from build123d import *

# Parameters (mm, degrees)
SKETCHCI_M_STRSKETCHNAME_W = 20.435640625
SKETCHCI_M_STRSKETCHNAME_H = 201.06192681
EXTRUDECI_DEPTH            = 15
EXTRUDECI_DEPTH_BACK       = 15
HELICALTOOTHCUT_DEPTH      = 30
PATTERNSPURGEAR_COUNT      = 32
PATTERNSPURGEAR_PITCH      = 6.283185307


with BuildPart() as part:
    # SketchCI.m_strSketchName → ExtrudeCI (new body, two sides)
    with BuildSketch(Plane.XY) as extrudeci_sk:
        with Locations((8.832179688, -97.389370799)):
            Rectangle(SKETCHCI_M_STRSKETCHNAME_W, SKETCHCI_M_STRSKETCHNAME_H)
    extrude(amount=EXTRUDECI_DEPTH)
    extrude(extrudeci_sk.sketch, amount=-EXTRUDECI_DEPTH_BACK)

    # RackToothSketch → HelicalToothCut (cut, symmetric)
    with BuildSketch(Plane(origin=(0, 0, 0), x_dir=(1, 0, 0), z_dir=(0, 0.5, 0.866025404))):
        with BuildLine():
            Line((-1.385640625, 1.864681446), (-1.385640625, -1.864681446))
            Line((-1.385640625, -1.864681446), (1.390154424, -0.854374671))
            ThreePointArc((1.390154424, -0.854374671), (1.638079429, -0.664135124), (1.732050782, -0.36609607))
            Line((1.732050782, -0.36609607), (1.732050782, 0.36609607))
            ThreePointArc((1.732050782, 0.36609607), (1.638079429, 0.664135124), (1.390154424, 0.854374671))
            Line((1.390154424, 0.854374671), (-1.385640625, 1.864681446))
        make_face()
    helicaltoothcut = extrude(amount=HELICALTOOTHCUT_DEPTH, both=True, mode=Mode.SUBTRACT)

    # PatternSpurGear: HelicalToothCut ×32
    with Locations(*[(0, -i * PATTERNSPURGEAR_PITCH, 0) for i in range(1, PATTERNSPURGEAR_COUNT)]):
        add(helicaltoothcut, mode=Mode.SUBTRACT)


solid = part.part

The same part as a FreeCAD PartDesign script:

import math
import FreeCAD as App
import Part
import Sketcher
from FreeCAD import Vector
Q = App.Units.Quantity

doc = App.newDocument("Part")
body = doc.addObject("PartDesign::Body", "Body")

sketch1 = doc.addObject("Sketcher::SketchObject", "Sketch")
body.addObject(sketch1)
sketch1.AttachmentSupport = (doc.XY_Plane, [""])
sketch1.MapMode = "FlatFace"
sketch1.addGeometry([
    Part.LineSegment(Vector(-1, 3, 0), Vector(-1, -198, 0)),
    Part.LineSegment(Vector(-1, -198, 0), Vector(19, -198, 0)),
    Part.LineSegment(Vector(19, -198, 0), Vector(19, 3, 0)),
    Part.LineSegment(Vector(19, 3, 0), Vector(-1, 3, 0)),
], False)
sketch1.addConstraint([
    Sketcher.Constraint("Coincident", 0, 2, 1, 1),
    Sketcher.Constraint("Coincident", 1, 2, 2, 1),
    Sketcher.Constraint("Coincident", 2, 2, 3, 1),
    Sketcher.Constraint("Coincident", 3, 2, 0, 1),
    Sketcher.Constraint("Vertical", 0),
    Sketcher.Constraint("Horizontal", 1),
    Sketcher.Constraint("Vertical", 2),
    Sketcher.Constraint("Horizontal", 3),
    Sketcher.Constraint("DistanceX", -1, 1, 1, 2, 19.05),
    Sketcher.Constraint("DistanceX", 1, 1, 1, 2, 20.435641),
    Sketcher.Constraint("DistanceY", 0, 2, 0, 1, 201.061927),
    Sketcher.Constraint("DistanceY", 0, 2, -1, 1, 197.920334),
])
pad1 = doc.addObject("PartDesign::Pad", "Pad")
body.addObject(pad1)
pad1.Profile = sketch1
pad1.Type = "TwoLengths"
pad1.Length = 15
pad1.Length2 = 15

sketch2 = doc.addObject("Sketcher::SketchObject", "Sketch001")
body.addObject(sketch2)
sketch2.Placement = App.Placement(Vector(0, 0, 0), App.Rotation(Vector(1, 0, 0), Vector(0, 0.866025404, -0.5), Vector(0, 0.5, 0.866025404), "ZXY"))
sketch2.addGeometry([
    Part.LineSegment(Vector(-1.4, 1.9, 0), Vector(-1.4, -1.9, 0)),
    Part.LineSegment(Vector(-1.4, -1.9, 0), Vector(1.4, -0.9, 0)),
    Part.ArcOfCircle(Part.Circle(Vector(1.2, -0.4, 0), Vector(0, 0, 1), 0.5), math.radians(-70), math.radians(0)),
    Part.LineSegment(Vector(1.7, -0.4, 0), Vector(1.7, 0.4, 0)),
    Part.ArcOfCircle(Part.Circle(Vector(1.2, 0.4, 0), Vector(0, 0, 1), 0.5), math.radians(0), math.radians(70)),
    Part.LineSegment(Vector(1.4, 0.9, 0), Vector(-1.4, 1.9, 0)),
], False)
sketch2.addConstraint([
    Sketcher.Constraint("Coincident", 0, 2, 1, 1),
    Sketcher.Constraint("Tangent", 1, 2, 2, 1),
    Sketcher.Constraint("Tangent", 2, 2, 3, 1),
    Sketcher.Constraint("Tangent", 3, 2, 4, 1),
    Sketcher.Constraint("Tangent", 4, 2, 5, 1),
    Sketcher.Constraint("Coincident", 5, 2, 0, 1),
    Sketcher.Constraint("Vertical", 0),
    Sketcher.Constraint("Vertical", 3),
    Sketcher.Constraint("Equal", 2, 4),
    Sketcher.Constraint("Symmetric", 1, 2, 4, 2, -1),
    Sketcher.Constraint("Angle", 1, Q("20 deg")),
    Sketcher.Constraint("Radius", 2, 0.519615),
    Sketcher.Constraint("Distance", 1, 2.953939),
    Sketcher.Constraint("DistanceY", 0, 2, 0, 1, 3.729363),
    Sketcher.Constraint("DistanceX", 0, 2, -1, 1, 1.385641),
])
pocket1 = doc.addObject("PartDesign::Pocket", "Pocket")
body.addObject(pocket1)
pocket1.Profile = sketch2
pocket1.Length = 60
pocket1.Midplane = True
doc.recompute()

linearpattern = doc.addObject("PartDesign::LinearPattern", "LinearPattern")
body.addObject(linearpattern)
linearpattern.Originals = [pocket1]
linearpattern.Direction = (doc.Y_Axis, [""])
linearpattern.Mode = "offset"
linearpattern.Offset = 6.283185
linearpattern.Occurrences = 32
linearpattern.Reversed = True
body.Tip = linearpattern

doc.recompute()
